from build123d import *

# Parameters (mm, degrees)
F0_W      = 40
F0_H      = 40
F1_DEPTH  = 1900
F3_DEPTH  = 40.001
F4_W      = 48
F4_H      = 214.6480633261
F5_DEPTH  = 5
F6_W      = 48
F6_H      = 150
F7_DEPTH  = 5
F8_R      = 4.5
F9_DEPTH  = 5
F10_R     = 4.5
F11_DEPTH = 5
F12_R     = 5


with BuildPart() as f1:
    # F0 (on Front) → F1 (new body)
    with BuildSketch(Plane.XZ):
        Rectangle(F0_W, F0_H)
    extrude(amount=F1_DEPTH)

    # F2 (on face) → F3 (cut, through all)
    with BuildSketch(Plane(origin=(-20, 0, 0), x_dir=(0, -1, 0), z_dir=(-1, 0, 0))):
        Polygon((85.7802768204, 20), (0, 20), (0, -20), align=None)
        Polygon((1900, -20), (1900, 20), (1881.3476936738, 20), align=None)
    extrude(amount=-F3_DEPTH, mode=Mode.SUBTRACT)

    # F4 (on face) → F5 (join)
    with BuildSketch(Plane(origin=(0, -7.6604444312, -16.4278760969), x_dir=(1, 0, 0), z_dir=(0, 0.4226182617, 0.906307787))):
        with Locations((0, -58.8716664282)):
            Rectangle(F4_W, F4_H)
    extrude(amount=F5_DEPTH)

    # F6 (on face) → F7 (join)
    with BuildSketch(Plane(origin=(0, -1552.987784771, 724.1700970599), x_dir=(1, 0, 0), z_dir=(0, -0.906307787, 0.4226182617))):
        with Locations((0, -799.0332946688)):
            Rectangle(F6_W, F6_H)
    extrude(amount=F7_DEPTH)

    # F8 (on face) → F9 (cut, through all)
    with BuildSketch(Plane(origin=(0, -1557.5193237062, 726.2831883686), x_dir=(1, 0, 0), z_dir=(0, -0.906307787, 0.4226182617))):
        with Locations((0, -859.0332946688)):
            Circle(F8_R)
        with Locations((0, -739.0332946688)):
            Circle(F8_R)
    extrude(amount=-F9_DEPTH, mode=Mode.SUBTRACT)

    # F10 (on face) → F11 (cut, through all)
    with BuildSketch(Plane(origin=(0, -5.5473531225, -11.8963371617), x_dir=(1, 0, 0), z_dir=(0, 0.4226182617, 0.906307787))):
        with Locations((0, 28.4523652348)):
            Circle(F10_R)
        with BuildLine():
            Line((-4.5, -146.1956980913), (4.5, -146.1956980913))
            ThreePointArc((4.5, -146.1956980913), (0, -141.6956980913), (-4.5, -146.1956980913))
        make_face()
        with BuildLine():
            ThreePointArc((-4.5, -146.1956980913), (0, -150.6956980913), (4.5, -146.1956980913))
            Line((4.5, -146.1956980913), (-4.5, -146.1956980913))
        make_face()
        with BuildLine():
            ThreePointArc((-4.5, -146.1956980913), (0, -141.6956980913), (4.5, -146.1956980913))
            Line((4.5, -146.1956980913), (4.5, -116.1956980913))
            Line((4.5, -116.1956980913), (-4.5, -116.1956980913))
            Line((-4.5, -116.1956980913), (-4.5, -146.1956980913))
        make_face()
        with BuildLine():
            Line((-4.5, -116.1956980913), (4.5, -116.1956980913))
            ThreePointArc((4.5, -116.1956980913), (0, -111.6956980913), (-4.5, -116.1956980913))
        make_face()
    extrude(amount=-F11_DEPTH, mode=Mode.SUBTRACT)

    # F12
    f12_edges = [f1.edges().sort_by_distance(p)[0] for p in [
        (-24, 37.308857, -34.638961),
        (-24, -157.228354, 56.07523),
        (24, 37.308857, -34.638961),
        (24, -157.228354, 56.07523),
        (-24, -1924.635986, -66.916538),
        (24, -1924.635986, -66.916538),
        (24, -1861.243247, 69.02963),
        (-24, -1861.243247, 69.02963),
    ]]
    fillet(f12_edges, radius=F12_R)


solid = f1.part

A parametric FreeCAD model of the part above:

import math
import FreeCAD as App
import Part
import Sketcher

V = App.Vector
Q = App.Units.Quantity


def edges_at(feature, points):
    """Names of the edges that pass closest to the given points."""
    edges = feature.Shape.Edges
    near = lambda p: min(range(len(edges)), key=lambda i: edges[i].distToShape(Part.Vertex(*p))[0])
    return sorted({f"Edge{near(p) + 1}" for p in points})

doc = App.newDocument("Part")
body = doc.addObject("PartDesign::Body", "Body")

sketch1 = doc.addObject("Sketcher::SketchObject", "Sketch")
body.addObject(sketch1)
sketch1.AttachmentSupport = (doc.XZ_Plane, [""])
sketch1.MapMode = "FlatFace"
sketch1.addGeometry(Part.LineSegment(V(-20, 20, 0), V(-20, -20, 0)), False)
sketch1.addGeometry(Part.LineSegment(V(-20, -20, 0), V(20, -20, 0)), False)
sketch1.addGeometry(Part.LineSegment(V(20, -20, 0), V(20, 20, 0)), False)
sketch1.addGeometry(Part.LineSegment(V(20, 20, 0), V(-20, 20, 0)), False)
sketch1.addConstraint(Sketcher.Constraint("Coincident", 0, 2, 1, 1))
sketch1.addConstraint(Sketcher.Constraint("Coincident", 1, 2, 2, 1))
sketch1.addConstraint(Sketcher.Constraint("Coincident", 2, 2, 3, 1))
sketch1.addConstraint(Sketcher.Constraint("Coincident", 3, 2, 0, 1))
sketch1.addConstraint(Sketcher.Constraint("Vertical", 0))
sketch1.addConstraint(Sketcher.Constraint("Horizontal", 1))
sketch1.addConstraint(Sketcher.Constraint("Vertical", 2))
sketch1.addConstraint(Sketcher.Constraint("Horizontal", 3))
sketch1.addConstraint(Sketcher.Constraint("Symmetric", 0, 2, 2, 2, -1, 1))
sketch1.addConstraint(Sketcher.Constraint("Equal", 3, 0))
sketch1.addConstraint(Sketcher.Constraint("DistanceX", 1, 1, 1, 2, Q("40 mm")))
pad1 = doc.addObject("PartDesign::Pad", "Pad")
body.addObject(pad1)
pad1.Profile = sketch1
pad1.Length = 1900

sketch2 = doc.addObject("Sketcher::SketchObject", "Sketch001")
body.addObject(sketch2)
sketch2.AttachmentSupport = (doc.YZ_Plane, [""])
sketch2.MapMode = "FlatFace"
sketch2.AttachmentOffset = App.Placement(V(0, 0, -20), App.Rotation())
sketch2.addGeometry(Part.LineSegment(V(-86, 20, 0), V(0, 20, 0)), False)
sketch2.addGeometry(Part.LineSegment(V(0, 20, 0), V(0, -20, 0)), False)
sketch2.addGeometry(Part.LineSegment(V(0, -20, 0), V(-86, 20, 0)), False)
sketch2.addGeometry(Part.LineSegment(V(-1900, -20, 0), V(-1900, 20, 0)), False)
sketch2.addGeometry(Part.LineSegment(V(-1900, 20, 0), V(-1881, 20, 0)), False)
sketch2.addGeometry(Part.LineSegment(V(-1881, 20, 0), V(-1900, -20, 0)), False)
sketch2.addConstraint(Sketcher.Constraint("Coincident", 0, 2, 1, 1))
sketch2.addConstraint(Sketcher.Constraint("Coincident", 1, 2, 2, 1))
sketch2.addConstraint(Sketcher.Constraint("Coincident", 2, 2, 0, 1))
sketch2.addConstraint(Sketcher.Constraint("Coincident", 3, 2, 4, 1))
sketch2.addConstraint(Sketcher.Constraint("Coincident", 4, 2, 5, 1))
sketch2.addConstraint(Sketcher.Constraint("Coincident", 5, 2, 3, 1))
sketch2.addConstraint(Sketcher.Constraint("Horizontal", 0))
sketch2.addConstraint(Sketcher.Constraint("Vertical", 1))
sketch2.addConstraint(Sketcher.Constraint("Vertical", 3))
sketch2.addConstraint(Sketcher.Constraint("Horizontal", 4))
sketch2.addConstraint(Sketcher.Constraint("Symmetric", 0, 2, 1, 2, -1, 1))
sketch2.addConstraint(Sketcher.Constraint("Perpendicular", 2, 5))
sketch2.addConstraint(Sketcher.Constraint("Horizontal", 2, 2, 3, 2))
sketch2.addConstraint(Sketcher.Constraint("Horizontal", 1, 2, 5, 2))
sketch2.addConstraint(Sketcher.Constraint("DistanceY", 1, 2, 1, 1, Q("40 mm")))
sketch2.addConstraint(Sketcher.Constraint("Angle", 2, Q("155 deg")))
sketch2.addConstraint(Sketcher.Constraint("DistanceX", 3, 2, -1, 1, Q("1900 mm")))
pocket1 = doc.addObject("PartDesign::Pocket", "Pocket")
body.addObject(pocket1)
pocket1.Profile = sketch2
pocket1.Type = "ThroughAll"
pocket1.Reversed = True

sketch3 = doc.addObject("Sketcher::SketchObject", "Sketch002")
body.addObject(sketch3)
sketch3.Placement = App.Placement(V(0, -7.660444, -16.427876), App.Rotation(V(1, 0, 0), V(0, 0.906307787, -0.422618262), V(0, 0.422618262, 0.906307787), "ZXY"))
sketch3.addGeometry(Part.LineSegment(V(-24, 48, 0), V(-24, -166, 0)), False)
sketch3.addGeometry(Part.LineSegment(V(-24, -166, 0), V(24, -166, 0)), False)
sketch3.addGeometry(Part.LineSegment(V(24, -166, 0), V(24, 48, 0)), False)
sketch3.addGeometry(Part.LineSegment(V(24, 48, 0), V(-24, 48, 0)), False)
sketch3.addConstraint(Sketcher.Constraint("Coincident", 0, 2, 1, 1))
sketch3.addConstraint(Sketcher.Constraint("Coincident", 1, 2, 2, 1))
sketch3.addConstraint(Sketcher.Constraint("Coincident", 2, 2, 3, 1))
sketch3.addConstraint(Sketcher.Constraint("Coincident", 3, 2, 0, 1))
sketch3.addConstraint(Sketcher.Constraint("Vertical", 0))
sketch3.addConstraint(Sketcher.Constraint("Horizontal", 1))
sketch3.addConstraint(Sketcher.Constraint("Vertical", 2))
sketch3.addConstraint(Sketcher.Constraint("Horizontal", 3))
sketch3.addConstraint(Sketcher.Constraint("DistanceX", 1, 1, 1, 2, Q("48 mm")))
sketch3.addConstraint(Sketcher.Constraint("DistanceX", 0, 2, -1, 1, Q("24 mm")))
sketch3.addConstraint(Sketcher.Constraint("DistanceY", 0, 2, -1, 1, Q("166.195698 mm")))
sketch3.addConstraint(Sketcher.Constraint("DistanceY", 0, 2, 0, 1, Q("214.648063 mm")))
pad2 = doc.addObject("PartDesign::Pad", "Pad001")
body.addObject(pad2)
pad2.Profile = sketch3
pad2.Length = 5

sketch4 = doc.addObject("Sketcher::SketchObject", "Sketch003")
body.addObject(sketch4)
sketch4.Placement = App.Placement(V(0, -1552.987785, 724.170097), App.Rotation(V(1, 0, 0), V(0, 0.422618262, 0.906307787), V(0, -0.906307787, 0.422618262), "ZXY"))
sketch4.addGeometry(Part.LineSegment(V(-24, -724, 0), V(-24, -874, 0)), False)
sketch4.addGeometry(Part.LineSegment(V(-24, -874, 0), V(24, -874, 0)), False)
sketch4.addGeometry(Part.LineSegment(V(24, -874, 0), V(24, -724, 0)), False)
sketch4.addGeometry(Part.LineSegment(V(24, -724, 0), V(-24, -724, 0)), False)
sketch4.addConstraint(Sketcher.Constraint("Coincident", 0, 2, 1, 1))
sketch4.addConstraint(Sketcher.Constraint("Coincident", 1, 2, 2, 1))
sketch4.addConstraint(Sketcher.Constraint("Coincident", 2, 2, 3, 1))
sketch4.addConstraint(Sketcher.Constraint("Coincident", 3, 2, 0, 1))
sketch4.addConstraint(Sketcher.Constraint("Vertical", 0))
sketch4.addConstraint(Sketcher.Constraint("Horizontal", 1))
sketch4.addConstraint(Sketcher.Constraint("Vertical", 2))
sketch4.addConstraint(Sketcher.Constraint("Horizontal", 3))
sketch4.addConstraint(Sketcher.Constraint("DistanceX", 1, 1, 1, 2, Q("48 mm")))
sketch4.addConstraint(Sketcher.Constraint("DistanceY", 0, 2, 0, 1, Q("150 mm")))
sketch4.addConstraint(Sketcher.Constraint("DistanceX", 0, 2, -1, 1, Q("24 mm")))
sketch4.addConstraint(Sketcher.Constraint("DistanceY", 0, 2, -1, 1, Q("874.033295 mm")))
pad3 = doc.addObject("PartDesign::Pad", "Pad002")
body.addObject(pad3)
pad3.Profile = sketch4
pad3.Length = 5

sketch5 = doc.addObject("Sketcher::SketchObject", "Sketch004")
body.addObject(sketch5)
sketch5.Placement = App.Placement(V(0, -1557.519324, 726.283188), App.Rotation(V(1, 0, 0), V(0, 0.422618262, 0.906307787), V(0, -0.906307787, 0.422618262), "ZXY"))
sketch5.addGeometry(Part.Circle(V(0, -859, 0), V(0, 0, 1), 4.5), False)
sketch5.addGeometry(Part.Circle(V(0, -739, 0), V(0, 0, 1), 4.5), False)
sketch5.addConstraint(Sketcher.Constraint("Equal", 0, 1))
sketch5.addConstraint(Sketcher.Constraint("PointOnObject", 0, 3, -2))
sketch5.addConstraint(Sketcher.Constraint("PointOnObject", 1, 3, -2))
sketch5.addConstraint(Sketcher.Constraint("Diameter", 0, Q("9 mm")))
sketch5.addConstraint(Sketcher.Constraint("DistanceY", 0, 3, 1, 3, Q("120 mm")))
sketch5.addConstraint(Sketcher.Constraint("DistanceY", 0, 3, -1, 1, Q("859.033295 mm")))
pocket2 = doc.addObject("PartDesign::Pocket", "Pocket001")
body.addObject(pocket2)
pocket2.Profile = sketch5
pocket2.Length = 5

sketch6 = doc.addObject("Sketcher::SketchObject", "Sketch005")
body.addObject(sketch6)
sketch6.Placement = App.Placement(V(0, -5.547353, -11.896337), App.Rotation(V(1, 0, 0), V(0, 0.906307787, -0.422618262), V(0, 0.422618262, 0.906307787), "ZXY"))
sketch6.addGeometry(Part.Circle(V(0, 28.5, 0), V(0, 0, 1), 4.5), False)
sketch6.addGeometry(Part.ArcOfCircle(Part.Circle(V(0, -146.2, 0), V(0, 0, 1), 4.5), math.radians(180), math.radians(360)), False)
sketch6.addGeometry(Part.LineSegment(V(4.5, -146.2, 0), V(4.5, -116.2, 0)), False)
sketch6.addGeometry(Part.ArcOfCircle(Part.Circle(V(0, -116.2, 0), V(0, 0, 1), 4.5), math.radians(0), math.radians(180)), False)
sketch6.addGeometry(Part.LineSegment(V(-4.5, -116.2, 0), V(-4.5, -146.2, 0)), False)
sketch6.addConstraint(Sketcher.Constraint("Tangent", 1, 2, 2, 1))
sketch6.addConstraint(Sketcher.Constraint("Tangent", 2, 2, 3, 1))
sketch6.addConstraint(Sketcher.Constraint("Tangent", 3, 2, 4, 1))
sketch6.addConstraint(Sketcher.Constraint("Tangent", 4, 2, 1, 1))
sketch6.addConstraint(Sketcher.Constraint("Vertical", 2))
sketch6.addConstraint(Sketcher.Constraint("Vertical", 4))
sketch6.addConstraint(Sketcher.Constraint("Equal", 0, 1))
sketch6.addConstraint(Sketcher.Constraint("PointOnObject", 0, 3, -2))
sketch6.addConstraint(Sketcher.Constraint("PointOnObject", 1, 3, -2))
sketch6.addConstraint(Sketcher.Constraint("Diameter", 0, Q("9 mm")))
sketch6.addConstraint(Sketcher.Constraint("DistanceY", 2, 1, 2, 2, Q("30 mm")))
sketch6.addConstraint(Sketcher.Constraint("DistanceY", 1, 3, -1, 1, Q("146.195698 mm")))
sketch6.addConstraint(Sketcher.Constraint("DistanceY", -1, 1, 0, 3, Q("28.452365 mm")))
pocket3 = doc.addObject("PartDesign::Pocket", "Pocket002")
body.addObject(pocket3)
pocket3.Profile = sketch6
pocket3.Length = 5
doc.recompute()

fillet = doc.addObject("PartDesign::Fillet", "Fillet")
body.addObject(fillet)
fillet.Base = (pocket3, edges_at(pocket3, [
    (-24, 37.309, -34.639),
    (-24, -157.228, 56.075),
    (24, 37.309, -34.639),
    (24, -157.228, 56.075),
    (-24, -1924.636, -66.917),
    (24, -1924.636, -66.917),
    (24, -1861.243, 69.03),
    (-24, -1861.243, 69.03),
]))
fillet.Radius = 5

doc.recompute()
